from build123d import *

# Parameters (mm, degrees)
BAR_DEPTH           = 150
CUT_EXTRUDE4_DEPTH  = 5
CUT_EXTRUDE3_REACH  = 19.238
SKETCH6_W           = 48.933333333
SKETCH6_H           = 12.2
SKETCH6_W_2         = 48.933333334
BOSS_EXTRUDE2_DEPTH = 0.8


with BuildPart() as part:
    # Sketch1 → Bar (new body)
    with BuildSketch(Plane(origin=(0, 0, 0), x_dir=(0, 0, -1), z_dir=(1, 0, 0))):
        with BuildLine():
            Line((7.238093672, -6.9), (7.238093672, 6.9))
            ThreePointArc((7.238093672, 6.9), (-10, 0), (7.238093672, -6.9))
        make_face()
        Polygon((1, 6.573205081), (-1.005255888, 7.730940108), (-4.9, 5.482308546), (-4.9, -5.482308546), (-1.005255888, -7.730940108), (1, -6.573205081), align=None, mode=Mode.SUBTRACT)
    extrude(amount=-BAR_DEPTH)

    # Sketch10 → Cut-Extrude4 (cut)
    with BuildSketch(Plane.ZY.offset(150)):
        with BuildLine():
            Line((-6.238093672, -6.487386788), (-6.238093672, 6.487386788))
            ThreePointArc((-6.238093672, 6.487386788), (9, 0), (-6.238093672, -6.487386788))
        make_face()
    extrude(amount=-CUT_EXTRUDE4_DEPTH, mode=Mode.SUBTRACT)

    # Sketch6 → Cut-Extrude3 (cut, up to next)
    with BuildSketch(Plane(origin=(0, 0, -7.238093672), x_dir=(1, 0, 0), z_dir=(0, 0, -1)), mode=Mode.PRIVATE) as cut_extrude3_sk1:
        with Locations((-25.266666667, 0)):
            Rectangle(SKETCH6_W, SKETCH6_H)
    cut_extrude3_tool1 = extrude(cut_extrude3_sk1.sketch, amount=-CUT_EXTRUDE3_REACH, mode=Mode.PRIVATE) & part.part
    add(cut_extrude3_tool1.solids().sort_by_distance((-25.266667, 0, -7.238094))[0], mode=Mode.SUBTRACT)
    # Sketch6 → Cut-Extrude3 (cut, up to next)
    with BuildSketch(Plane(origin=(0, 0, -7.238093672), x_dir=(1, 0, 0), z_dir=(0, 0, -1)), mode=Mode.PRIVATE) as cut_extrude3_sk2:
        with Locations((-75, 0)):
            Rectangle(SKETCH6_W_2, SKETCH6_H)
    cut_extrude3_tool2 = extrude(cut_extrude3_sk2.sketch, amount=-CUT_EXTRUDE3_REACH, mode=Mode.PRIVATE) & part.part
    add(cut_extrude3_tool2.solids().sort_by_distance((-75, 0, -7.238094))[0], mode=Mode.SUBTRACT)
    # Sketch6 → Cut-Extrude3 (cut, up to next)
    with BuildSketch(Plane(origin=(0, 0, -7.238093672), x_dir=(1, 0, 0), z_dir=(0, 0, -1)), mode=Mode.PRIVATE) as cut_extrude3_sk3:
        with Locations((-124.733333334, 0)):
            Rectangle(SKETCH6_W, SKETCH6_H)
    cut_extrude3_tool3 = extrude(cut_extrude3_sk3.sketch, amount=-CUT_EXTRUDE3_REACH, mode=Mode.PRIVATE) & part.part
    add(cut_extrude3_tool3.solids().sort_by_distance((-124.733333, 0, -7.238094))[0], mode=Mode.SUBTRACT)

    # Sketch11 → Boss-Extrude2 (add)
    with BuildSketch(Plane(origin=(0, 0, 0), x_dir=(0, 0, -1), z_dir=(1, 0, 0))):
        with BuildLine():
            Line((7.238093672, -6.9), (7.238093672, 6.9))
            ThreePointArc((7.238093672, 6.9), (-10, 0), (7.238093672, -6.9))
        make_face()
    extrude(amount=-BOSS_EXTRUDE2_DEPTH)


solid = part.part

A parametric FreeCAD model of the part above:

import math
import FreeCAD as App
import Part
import Sketcher

V = App.Vector
Q = App.Units.Quantity

doc = App.newDocument("Part")
body = doc.addObject("PartDesign::Body", "Body")

sketch1 = body.newObject("Sketcher::SketchObject", "Sketch")
sketch1.AttachmentSupport = (doc.getObject("YZ_Plane"), [""])
sketch1.MapMode = "FlatFace"
sketch1.addGeometry([
    Part.LineSegment(V(-6.9, -7.238094, 0), V(6.9, -7.238094, 0)),
    Part.ArcOfCircle(Part.Circle(V(0, 0, 0), V(0, 0, 1), 10), math.radians(-46.369891), math.radians(226.369891)),
    Part.LineSegment(V(7.73094, 1.005256, 0), V(6.573205, -1, 0)),
    Part.LineSegment(V(6.573205, -1, 0), V(-6.573205, -1, 0)),
    Part.LineSegment(V(-6.573205, -1, 0), V(-7.73094, 1.005256, 0)),
    Part.LineSegment(V(-7.73094, 1.005256, 0), V(-5.482309, 4.9, 0)),
    Part.LineSegment(V(-5.482309, 4.9, 0), V(5.482309, 4.9, 0)),
    Part.LineSegment(V(5.482309, 4.9, 0), V(7.73094, 1.005256, 0)),
], False)
sketch1.addConstraint([
    Sketcher.Constraint("Coincident", 0, 1, 1, 2),
    Sketcher.Constraint("Coincident", 1, 1, 0, 2),
    Sketcher.Constraint("Coincident", 2, 2, 3, 1),
    Sketcher.Constraint("Coincident", 3, 2, 4, 1),
    Sketcher.Constraint("Coincident", 4, 2, 5, 1),
    Sketcher.Constraint("Coincident", 5, 2, 6, 1),
    Sketcher.Constraint("Coincident", 6, 2, 7, 1),
    Sketcher.Constraint("Coincident", 7, 2, 2, 1),
    Sketcher.Constraint("Horizontal", 0),
    Sketcher.Constraint("Horizontal", 3),
    Sketcher.Constraint("Horizontal", 6),
    Sketcher.Constraint("Coincident", 1, 3, -1, 1),
    Sketcher.Constraint("Symmetric", 4, 2, 7, 2, -2),
    Sketcher.Constraint("Parallel", 2, 5),
    Sketcher.Constraint("Parallel", 4, 7),
    Sketcher.Constraint("Equal", 2, 4),
    Sketcher.Constraint("Radius", 1, 10.0),
    Sketcher.Constraint("Angle", 2, Q("-120 deg")),
    Sketcher.Constraint("DistanceX", 0, 1, 0, 2, 13.8),
    Sketcher.Constraint("DistanceY", 2, 2, -1, 1, 1.0),
    Sketcher.Constraint("DistanceY", -1, 1, 5, 2, 4.9),
    Sketcher.Constraint("DistanceX", 3, 2, 3, 1, 13.14641),
    Sketcher.Constraint("Distance", 2, 2.31547),
])
pad1 = body.newObject("PartDesign::Pad", "Pad")
pad1.Profile = sketch1
pad1.Length = 150
pad1.Reversed = True

sketch2 = body.newObject("Sketcher::SketchObject", "Sketch001")
sketch2.AttachmentSupport = (doc.getObject("YZ_Plane"), [""])
sketch2.MapMode = "FlatFace"
sketch2.AttachmentOffset = App.Placement(V(0, 0, -150), App.Rotation())
sketch2.addGeometry([
    Part.LineSegment(V(6.487387, -6.238094, 0), V(-6.487387, -6.238094, 0)),
    Part.ArcOfCircle(Part.Circle(V(0, 0, 0), V(0, 0, 1), 9), math.radians(-43.877715), math.radians(223.877715)),
], False)
sketch2.addConstraint([
    Sketcher.Constraint("Coincident", 0, 1, 1, 1),
    Sketcher.Constraint("Coincident", 1, 2, 0, 2),
    Sketcher.Constraint("Horizontal", 0),
    Sketcher.Constraint("Coincident", 1, 3, -1, 1),
    Sketcher.Constraint("Radius", 1, 9.0),
    Sketcher.Constraint("DistanceX", 0, 2, 0, 1, 12.974774),
])
pocket1 = body.newObject("PartDesign::Pocket", "Pocket")
pocket1.Profile = sketch2
pocket1.Length = 5
pocket1.Reversed = True

sketch3 = body.newObject("Sketcher::SketchObject", "Sketch002")
sketch3.AttachmentSupport = (doc.getObject("XY_Plane"), [""])
sketch3.MapMode = "FlatFace"
sketch3.AttachmentOffset = App.Placement(V(0, 0, -7.238094), App.Rotation())
sketch3.addGeometry([
    Part.LineSegment(V(-49.733333, -6.1, 0), V(-49.733333, 6.1, 0)),
    Part.LineSegment(V(-49.733333, 6.1, 0), V(-0.8, 6.1, 0)),
    Part.LineSegment(V(-0.8, 6.1, 0), V(-0.8, -6.1, 0)),
    Part.LineSegment(V(-0.8, -6.1, 0), V(-49.733333, -6.1, 0)),
], False)
sketch3.addConstraint([
    Sketcher.Constraint("Coincident", 0, 2, 1, 1),
    Sketcher.Constraint("Coincident", 1, 2, 2, 1),
    Sketcher.Constraint("Coincident", 2, 2, 3, 1),
    Sketcher.Constraint("Coincident", 3, 2, 0, 1),
    Sketcher.Constraint("Vertical", 0),
    Sketcher.Constraint("Horizontal", 1),
    Sketcher.Constraint("Vertical", 2),
    Sketcher.Constraint("Horizontal", 3),
    Sketcher.Constraint("DistanceY", 0, 1, 0, 2, 12.2),
    Sketcher.Constraint("DistanceY", -1, 1, 0, 2, 6.1),
    Sketcher.Constraint("DistanceX", 1, 2, -1, 1, 0.8),
    Sketcher.Constraint("DistanceX", 1, 1, 1, 2, 48.933333),
])
pocket2 = body.newObject("PartDesign::Pocket", "Pocket001")
pocket2.Profile = sketch3
pocket2.Type = "UpToFirst"
pocket2.Reversed = True

sketch4 = body.newObject("Sketcher::SketchObject", "Sketch003")
sketch4.AttachmentSupport = (doc.getObject("XY_Plane"), [""])
sketch4.MapMode = "FlatFace"
sketch4.AttachmentOffset = App.Placement(V(0, 0, -7.238094), App.Rotation())
sketch4.addGeometry([
    Part.LineSegment(V(-99.466667, -6.1, 0), V(-99.466667, 6.1, 0)),
    Part.LineSegment(V(-99.466667, 6.1, 0), V(-50.533333, 6.1, 0)),
    Part.LineSegment(V(-50.533333, 6.1, 0), V(-50.533333, -6.1, 0)),
    Part.LineSegment(V(-50.533333, -6.1, 0), V(-99.466667, -6.1, 0)),
], False)
sketch4.addConstraint([
    Sketcher.Constraint("Coincident", 0, 2, 1, 1),
    Sketcher.Constraint("Coincident", 1, 2, 2, 1),
    Sketcher.Constraint("Coincident", 2, 2, 3, 1),
    Sketcher.Constraint("Coincident", 3, 2, 0, 1),
    Sketcher.Constraint("Vertical", 0),
    Sketcher.Constraint("Horizontal", 1),
    Sketcher.Constraint("Vertical", 2),
    Sketcher.Constraint("Horizontal", 3),
    Sketcher.Constraint("DistanceY", 0, 1, 0, 2, 12.2),
    Sketcher.Constraint("DistanceY", -1, 1, 0, 2, 6.1),
    Sketcher.Constraint("DistanceX", 1, 1, 1, 2, 48.933333),
    Sketcher.Constraint("DistanceX", 0, 2, -1, 1, 99.466667),
])
pocket3 = body.newObject("PartDesign::Pocket", "Pocket002")
pocket3.Profile = sketch4
pocket3.Type = "UpToFirst"
pocket3.Reversed = True

sketch5 = body.newObject("Sketcher::SketchObject", "Sketch004")
sketch5.AttachmentSupport = (doc.getObject("XY_Plane"), [""])
sketch5.MapMode = "FlatFace"
sketch5.AttachmentOffset = App.Placement(V(0, 0, -7.238094), App.Rotation())
sketch5.addGeometry([
    Part.LineSegment(V(-149.2, -6.1, 0), V(-149.2, 6.1, 0)),
    Part.LineSegment(V(-149.2, 6.1, 0), V(-100.266667, 6.1, 0)),
    Part.LineSegment(V(-100.266667, 6.1, 0), V(-100.266667, -6.1, 0)),
    Part.LineSegment(V(-100.266667, -6.1, 0), V(-149.2, -6.1, 0)),
], False)
sketch5.addConstraint([
    Sketcher.Constraint("Coincident", 0, 2, 1, 1),
    Sketcher.Constraint("Coincident", 1, 2, 2, 1),
    Sketcher.Constraint("Coincident", 2, 2, 3, 1),
    Sketcher.Constraint("Coincident", 3, 2, 0, 1),
    Sketcher.Constraint("Vertical", 0),
    Sketcher.Constraint("Horizontal", 1),
    Sketcher.Constraint("Vertical", 2),
    Sketcher.Constraint("Horizontal", 3),
    Sketcher.Constraint("DistanceY", 0, 1, 0, 2, 12.2),
    Sketcher.Constraint("DistanceX", 0, 2, -1, 1, 149.2),
    Sketcher.Constraint("DistanceY", -1, 1, 0, 2, 6.1),
    Sketcher.Constraint("DistanceX", 1, 1, 1, 2, 48.933333),
])
pocket4 = body.newObject("PartDesign::Pocket", "Pocket003")
pocket4.Profile = sketch5
pocket4.Type = "UpToFirst"
pocket4.Reversed = True

sketch6 = body.newObject("Sketcher::SketchObject", "Sketch005")
sketch6.AttachmentSupport = (doc.getObject("YZ_Plane"), [""])
sketch6.MapMode = "FlatFace"
sketch6.addGeometry([
    Part.LineSegment(V(-6.9, -7.238094, 0), V(6.9, -7.238094, 0)),
    Part.ArcOfCircle(Part.Circle(V(0, 0, 0), V(0, 0, 1), 10), math.radians(-46.369891), math.radians(226.369891)),
], False)
sketch6.addConstraint([
    Sketcher.Constraint("Coincident", 0, 1, 1, 2),
    Sketcher.Constraint("Coincident", 1, 1, 0, 2),
    Sketcher.Constraint("Horizontal", 0),
    Sketcher.Constraint("Coincident", 1, 3, -1, 1),
    Sketcher.Constraint("Radius", 1, 10.0),
    Sketcher.Constraint("DistanceX", 0, 1, 0, 2, 13.8),
])
pad2 = body.newObject("PartDesign::Pad", "Pad001")
pad2.Profile = sketch6
pad2.Length = 0.8
pad2.Reversed = True

doc.recompute()
